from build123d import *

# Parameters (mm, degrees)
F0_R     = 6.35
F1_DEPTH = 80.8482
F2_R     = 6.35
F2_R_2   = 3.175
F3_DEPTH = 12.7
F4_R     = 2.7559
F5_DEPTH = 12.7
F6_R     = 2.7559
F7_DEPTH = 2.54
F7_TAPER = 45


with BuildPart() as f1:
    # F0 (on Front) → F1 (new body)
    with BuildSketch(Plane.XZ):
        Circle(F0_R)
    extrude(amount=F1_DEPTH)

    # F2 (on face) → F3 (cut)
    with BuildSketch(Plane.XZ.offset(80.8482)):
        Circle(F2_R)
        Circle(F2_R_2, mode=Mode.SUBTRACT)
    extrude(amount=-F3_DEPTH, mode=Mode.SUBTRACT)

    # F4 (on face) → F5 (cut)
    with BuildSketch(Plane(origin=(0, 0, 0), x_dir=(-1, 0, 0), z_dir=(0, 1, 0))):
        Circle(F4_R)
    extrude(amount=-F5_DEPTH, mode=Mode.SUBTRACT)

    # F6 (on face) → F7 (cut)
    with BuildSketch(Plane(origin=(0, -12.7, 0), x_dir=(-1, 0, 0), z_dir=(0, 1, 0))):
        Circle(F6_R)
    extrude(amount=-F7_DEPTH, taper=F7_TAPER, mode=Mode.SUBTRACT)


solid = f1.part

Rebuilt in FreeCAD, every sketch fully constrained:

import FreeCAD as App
import Part
import Sketcher
Q = App.Units.Quantity

doc = App.newDocument("Part")
body = doc.addObject("PartDesign::Body", "Body")

# Sketch on XZ plane
sketch1 = body.newObject("Sketcher::SketchObject", "Sketch")
sketch1.AttachmentSupport = (doc.getObject("XZ_Plane"), [""])
sketch1.MapMode = "FlatFace"
sketch1.addGeometry(Part.Circle(App.Vector(0, 0, 0), App.Vector(0, 0, 1), 6), False)
sketch1.addConstraint([
    Sketcher.Constraint("Coincident", 0, 3, -1, 1),
    Sketcher.Constraint("Diameter", 0, Q("0.5 in")),
])
pad1 = body.newObject("PartDesign::Pad", "Pad")
pad1.Profile = sketch1
pad1.Length = Q("3.183 in")

# Sketch on XZ plane
sketch2 = body.newObject("Sketcher::SketchObject", "Sketch001")
sketch2.AttachmentSupport = (doc.getObject("XZ_Plane"), [""])
sketch2.MapMode = "FlatFace"
sketch2.AttachmentOffset = App.Placement(App.Vector(0, 0, 3.183 * 25.4), App.Rotation())
sketch2.addGeometry([
    Part.Circle(App.Vector(0, 0, 0), App.Vector(0, 0, 1), 6.3),
    Part.Circle(App.Vector(0, 0, 0), App.Vector(0, 0, 1), 3.2),
], False)
sketch2.addConstraint([
    Sketcher.Constraint("Coincident", 0, 3, -1, 1),
    Sketcher.Constraint("Coincident", 1, 3, -1, 1),
    Sketcher.Constraint("Diameter", 0, Q("0.5 in")),
    Sketcher.Constraint("Diameter", 1, Q("0.25 in")),
])
pocket1 = body.newObject("PartDesign::Pocket", "Pocket")
pocket1.Profile = sketch2
pocket1.Length = Q("0.5 in")

# Sketch on XZ plane
sketch3 = body.newObject("Sketcher::SketchObject", "Sketch002")
sketch3.AttachmentSupport = (doc.getObject("XZ_Plane"), [""])
sketch3.MapMode = "FlatFace"
sketch3.addGeometry(Part.Circle(App.Vector(0, 0, 0), App.Vector(0, 0, 1), 2.8), False)
sketch3.addConstraint([
    Sketcher.Constraint("Coincident", 0, 3, -1, 1),
    Sketcher.Constraint("Diameter", 0, Q("0.217 in")),
])
pocket2 = body.newObject("PartDesign::Pocket", "Pocket001")
pocket2.Profile = sketch3
pocket2.Length = Q("0.5 in")
pocket2.Reversed = True

# Sketch on XZ plane
sketch4 = body.newObject("Sketcher::SketchObject", "Sketch003")
sketch4.AttachmentSupport = (doc.getObject("XZ_Plane"), [""])
sketch4.MapMode = "FlatFace"
sketch4.AttachmentOffset = App.Placement(App.Vector(0, 0, 0.5 * 25.4), App.Rotation())
sketch4.addGeometry(Part.Circle(App.Vector(0, 0, 0), App.Vector(0, 0, 1), 2.8), False)
sketch4.addConstraint([
    Sketcher.Constraint("Coincident", 0, 3, -1, 1),
    Sketcher.Constraint("Diameter", 0, Q("0.217 in")),
])
pocket3 = body.newObject("PartDesign::Pocket", "Pocket002")
pocket3.Profile = sketch4
pocket3.Length = Q("0.1 in")
pocket3.Reversed = True
pocket3.TaperAngle = -45

doc.recompute()
